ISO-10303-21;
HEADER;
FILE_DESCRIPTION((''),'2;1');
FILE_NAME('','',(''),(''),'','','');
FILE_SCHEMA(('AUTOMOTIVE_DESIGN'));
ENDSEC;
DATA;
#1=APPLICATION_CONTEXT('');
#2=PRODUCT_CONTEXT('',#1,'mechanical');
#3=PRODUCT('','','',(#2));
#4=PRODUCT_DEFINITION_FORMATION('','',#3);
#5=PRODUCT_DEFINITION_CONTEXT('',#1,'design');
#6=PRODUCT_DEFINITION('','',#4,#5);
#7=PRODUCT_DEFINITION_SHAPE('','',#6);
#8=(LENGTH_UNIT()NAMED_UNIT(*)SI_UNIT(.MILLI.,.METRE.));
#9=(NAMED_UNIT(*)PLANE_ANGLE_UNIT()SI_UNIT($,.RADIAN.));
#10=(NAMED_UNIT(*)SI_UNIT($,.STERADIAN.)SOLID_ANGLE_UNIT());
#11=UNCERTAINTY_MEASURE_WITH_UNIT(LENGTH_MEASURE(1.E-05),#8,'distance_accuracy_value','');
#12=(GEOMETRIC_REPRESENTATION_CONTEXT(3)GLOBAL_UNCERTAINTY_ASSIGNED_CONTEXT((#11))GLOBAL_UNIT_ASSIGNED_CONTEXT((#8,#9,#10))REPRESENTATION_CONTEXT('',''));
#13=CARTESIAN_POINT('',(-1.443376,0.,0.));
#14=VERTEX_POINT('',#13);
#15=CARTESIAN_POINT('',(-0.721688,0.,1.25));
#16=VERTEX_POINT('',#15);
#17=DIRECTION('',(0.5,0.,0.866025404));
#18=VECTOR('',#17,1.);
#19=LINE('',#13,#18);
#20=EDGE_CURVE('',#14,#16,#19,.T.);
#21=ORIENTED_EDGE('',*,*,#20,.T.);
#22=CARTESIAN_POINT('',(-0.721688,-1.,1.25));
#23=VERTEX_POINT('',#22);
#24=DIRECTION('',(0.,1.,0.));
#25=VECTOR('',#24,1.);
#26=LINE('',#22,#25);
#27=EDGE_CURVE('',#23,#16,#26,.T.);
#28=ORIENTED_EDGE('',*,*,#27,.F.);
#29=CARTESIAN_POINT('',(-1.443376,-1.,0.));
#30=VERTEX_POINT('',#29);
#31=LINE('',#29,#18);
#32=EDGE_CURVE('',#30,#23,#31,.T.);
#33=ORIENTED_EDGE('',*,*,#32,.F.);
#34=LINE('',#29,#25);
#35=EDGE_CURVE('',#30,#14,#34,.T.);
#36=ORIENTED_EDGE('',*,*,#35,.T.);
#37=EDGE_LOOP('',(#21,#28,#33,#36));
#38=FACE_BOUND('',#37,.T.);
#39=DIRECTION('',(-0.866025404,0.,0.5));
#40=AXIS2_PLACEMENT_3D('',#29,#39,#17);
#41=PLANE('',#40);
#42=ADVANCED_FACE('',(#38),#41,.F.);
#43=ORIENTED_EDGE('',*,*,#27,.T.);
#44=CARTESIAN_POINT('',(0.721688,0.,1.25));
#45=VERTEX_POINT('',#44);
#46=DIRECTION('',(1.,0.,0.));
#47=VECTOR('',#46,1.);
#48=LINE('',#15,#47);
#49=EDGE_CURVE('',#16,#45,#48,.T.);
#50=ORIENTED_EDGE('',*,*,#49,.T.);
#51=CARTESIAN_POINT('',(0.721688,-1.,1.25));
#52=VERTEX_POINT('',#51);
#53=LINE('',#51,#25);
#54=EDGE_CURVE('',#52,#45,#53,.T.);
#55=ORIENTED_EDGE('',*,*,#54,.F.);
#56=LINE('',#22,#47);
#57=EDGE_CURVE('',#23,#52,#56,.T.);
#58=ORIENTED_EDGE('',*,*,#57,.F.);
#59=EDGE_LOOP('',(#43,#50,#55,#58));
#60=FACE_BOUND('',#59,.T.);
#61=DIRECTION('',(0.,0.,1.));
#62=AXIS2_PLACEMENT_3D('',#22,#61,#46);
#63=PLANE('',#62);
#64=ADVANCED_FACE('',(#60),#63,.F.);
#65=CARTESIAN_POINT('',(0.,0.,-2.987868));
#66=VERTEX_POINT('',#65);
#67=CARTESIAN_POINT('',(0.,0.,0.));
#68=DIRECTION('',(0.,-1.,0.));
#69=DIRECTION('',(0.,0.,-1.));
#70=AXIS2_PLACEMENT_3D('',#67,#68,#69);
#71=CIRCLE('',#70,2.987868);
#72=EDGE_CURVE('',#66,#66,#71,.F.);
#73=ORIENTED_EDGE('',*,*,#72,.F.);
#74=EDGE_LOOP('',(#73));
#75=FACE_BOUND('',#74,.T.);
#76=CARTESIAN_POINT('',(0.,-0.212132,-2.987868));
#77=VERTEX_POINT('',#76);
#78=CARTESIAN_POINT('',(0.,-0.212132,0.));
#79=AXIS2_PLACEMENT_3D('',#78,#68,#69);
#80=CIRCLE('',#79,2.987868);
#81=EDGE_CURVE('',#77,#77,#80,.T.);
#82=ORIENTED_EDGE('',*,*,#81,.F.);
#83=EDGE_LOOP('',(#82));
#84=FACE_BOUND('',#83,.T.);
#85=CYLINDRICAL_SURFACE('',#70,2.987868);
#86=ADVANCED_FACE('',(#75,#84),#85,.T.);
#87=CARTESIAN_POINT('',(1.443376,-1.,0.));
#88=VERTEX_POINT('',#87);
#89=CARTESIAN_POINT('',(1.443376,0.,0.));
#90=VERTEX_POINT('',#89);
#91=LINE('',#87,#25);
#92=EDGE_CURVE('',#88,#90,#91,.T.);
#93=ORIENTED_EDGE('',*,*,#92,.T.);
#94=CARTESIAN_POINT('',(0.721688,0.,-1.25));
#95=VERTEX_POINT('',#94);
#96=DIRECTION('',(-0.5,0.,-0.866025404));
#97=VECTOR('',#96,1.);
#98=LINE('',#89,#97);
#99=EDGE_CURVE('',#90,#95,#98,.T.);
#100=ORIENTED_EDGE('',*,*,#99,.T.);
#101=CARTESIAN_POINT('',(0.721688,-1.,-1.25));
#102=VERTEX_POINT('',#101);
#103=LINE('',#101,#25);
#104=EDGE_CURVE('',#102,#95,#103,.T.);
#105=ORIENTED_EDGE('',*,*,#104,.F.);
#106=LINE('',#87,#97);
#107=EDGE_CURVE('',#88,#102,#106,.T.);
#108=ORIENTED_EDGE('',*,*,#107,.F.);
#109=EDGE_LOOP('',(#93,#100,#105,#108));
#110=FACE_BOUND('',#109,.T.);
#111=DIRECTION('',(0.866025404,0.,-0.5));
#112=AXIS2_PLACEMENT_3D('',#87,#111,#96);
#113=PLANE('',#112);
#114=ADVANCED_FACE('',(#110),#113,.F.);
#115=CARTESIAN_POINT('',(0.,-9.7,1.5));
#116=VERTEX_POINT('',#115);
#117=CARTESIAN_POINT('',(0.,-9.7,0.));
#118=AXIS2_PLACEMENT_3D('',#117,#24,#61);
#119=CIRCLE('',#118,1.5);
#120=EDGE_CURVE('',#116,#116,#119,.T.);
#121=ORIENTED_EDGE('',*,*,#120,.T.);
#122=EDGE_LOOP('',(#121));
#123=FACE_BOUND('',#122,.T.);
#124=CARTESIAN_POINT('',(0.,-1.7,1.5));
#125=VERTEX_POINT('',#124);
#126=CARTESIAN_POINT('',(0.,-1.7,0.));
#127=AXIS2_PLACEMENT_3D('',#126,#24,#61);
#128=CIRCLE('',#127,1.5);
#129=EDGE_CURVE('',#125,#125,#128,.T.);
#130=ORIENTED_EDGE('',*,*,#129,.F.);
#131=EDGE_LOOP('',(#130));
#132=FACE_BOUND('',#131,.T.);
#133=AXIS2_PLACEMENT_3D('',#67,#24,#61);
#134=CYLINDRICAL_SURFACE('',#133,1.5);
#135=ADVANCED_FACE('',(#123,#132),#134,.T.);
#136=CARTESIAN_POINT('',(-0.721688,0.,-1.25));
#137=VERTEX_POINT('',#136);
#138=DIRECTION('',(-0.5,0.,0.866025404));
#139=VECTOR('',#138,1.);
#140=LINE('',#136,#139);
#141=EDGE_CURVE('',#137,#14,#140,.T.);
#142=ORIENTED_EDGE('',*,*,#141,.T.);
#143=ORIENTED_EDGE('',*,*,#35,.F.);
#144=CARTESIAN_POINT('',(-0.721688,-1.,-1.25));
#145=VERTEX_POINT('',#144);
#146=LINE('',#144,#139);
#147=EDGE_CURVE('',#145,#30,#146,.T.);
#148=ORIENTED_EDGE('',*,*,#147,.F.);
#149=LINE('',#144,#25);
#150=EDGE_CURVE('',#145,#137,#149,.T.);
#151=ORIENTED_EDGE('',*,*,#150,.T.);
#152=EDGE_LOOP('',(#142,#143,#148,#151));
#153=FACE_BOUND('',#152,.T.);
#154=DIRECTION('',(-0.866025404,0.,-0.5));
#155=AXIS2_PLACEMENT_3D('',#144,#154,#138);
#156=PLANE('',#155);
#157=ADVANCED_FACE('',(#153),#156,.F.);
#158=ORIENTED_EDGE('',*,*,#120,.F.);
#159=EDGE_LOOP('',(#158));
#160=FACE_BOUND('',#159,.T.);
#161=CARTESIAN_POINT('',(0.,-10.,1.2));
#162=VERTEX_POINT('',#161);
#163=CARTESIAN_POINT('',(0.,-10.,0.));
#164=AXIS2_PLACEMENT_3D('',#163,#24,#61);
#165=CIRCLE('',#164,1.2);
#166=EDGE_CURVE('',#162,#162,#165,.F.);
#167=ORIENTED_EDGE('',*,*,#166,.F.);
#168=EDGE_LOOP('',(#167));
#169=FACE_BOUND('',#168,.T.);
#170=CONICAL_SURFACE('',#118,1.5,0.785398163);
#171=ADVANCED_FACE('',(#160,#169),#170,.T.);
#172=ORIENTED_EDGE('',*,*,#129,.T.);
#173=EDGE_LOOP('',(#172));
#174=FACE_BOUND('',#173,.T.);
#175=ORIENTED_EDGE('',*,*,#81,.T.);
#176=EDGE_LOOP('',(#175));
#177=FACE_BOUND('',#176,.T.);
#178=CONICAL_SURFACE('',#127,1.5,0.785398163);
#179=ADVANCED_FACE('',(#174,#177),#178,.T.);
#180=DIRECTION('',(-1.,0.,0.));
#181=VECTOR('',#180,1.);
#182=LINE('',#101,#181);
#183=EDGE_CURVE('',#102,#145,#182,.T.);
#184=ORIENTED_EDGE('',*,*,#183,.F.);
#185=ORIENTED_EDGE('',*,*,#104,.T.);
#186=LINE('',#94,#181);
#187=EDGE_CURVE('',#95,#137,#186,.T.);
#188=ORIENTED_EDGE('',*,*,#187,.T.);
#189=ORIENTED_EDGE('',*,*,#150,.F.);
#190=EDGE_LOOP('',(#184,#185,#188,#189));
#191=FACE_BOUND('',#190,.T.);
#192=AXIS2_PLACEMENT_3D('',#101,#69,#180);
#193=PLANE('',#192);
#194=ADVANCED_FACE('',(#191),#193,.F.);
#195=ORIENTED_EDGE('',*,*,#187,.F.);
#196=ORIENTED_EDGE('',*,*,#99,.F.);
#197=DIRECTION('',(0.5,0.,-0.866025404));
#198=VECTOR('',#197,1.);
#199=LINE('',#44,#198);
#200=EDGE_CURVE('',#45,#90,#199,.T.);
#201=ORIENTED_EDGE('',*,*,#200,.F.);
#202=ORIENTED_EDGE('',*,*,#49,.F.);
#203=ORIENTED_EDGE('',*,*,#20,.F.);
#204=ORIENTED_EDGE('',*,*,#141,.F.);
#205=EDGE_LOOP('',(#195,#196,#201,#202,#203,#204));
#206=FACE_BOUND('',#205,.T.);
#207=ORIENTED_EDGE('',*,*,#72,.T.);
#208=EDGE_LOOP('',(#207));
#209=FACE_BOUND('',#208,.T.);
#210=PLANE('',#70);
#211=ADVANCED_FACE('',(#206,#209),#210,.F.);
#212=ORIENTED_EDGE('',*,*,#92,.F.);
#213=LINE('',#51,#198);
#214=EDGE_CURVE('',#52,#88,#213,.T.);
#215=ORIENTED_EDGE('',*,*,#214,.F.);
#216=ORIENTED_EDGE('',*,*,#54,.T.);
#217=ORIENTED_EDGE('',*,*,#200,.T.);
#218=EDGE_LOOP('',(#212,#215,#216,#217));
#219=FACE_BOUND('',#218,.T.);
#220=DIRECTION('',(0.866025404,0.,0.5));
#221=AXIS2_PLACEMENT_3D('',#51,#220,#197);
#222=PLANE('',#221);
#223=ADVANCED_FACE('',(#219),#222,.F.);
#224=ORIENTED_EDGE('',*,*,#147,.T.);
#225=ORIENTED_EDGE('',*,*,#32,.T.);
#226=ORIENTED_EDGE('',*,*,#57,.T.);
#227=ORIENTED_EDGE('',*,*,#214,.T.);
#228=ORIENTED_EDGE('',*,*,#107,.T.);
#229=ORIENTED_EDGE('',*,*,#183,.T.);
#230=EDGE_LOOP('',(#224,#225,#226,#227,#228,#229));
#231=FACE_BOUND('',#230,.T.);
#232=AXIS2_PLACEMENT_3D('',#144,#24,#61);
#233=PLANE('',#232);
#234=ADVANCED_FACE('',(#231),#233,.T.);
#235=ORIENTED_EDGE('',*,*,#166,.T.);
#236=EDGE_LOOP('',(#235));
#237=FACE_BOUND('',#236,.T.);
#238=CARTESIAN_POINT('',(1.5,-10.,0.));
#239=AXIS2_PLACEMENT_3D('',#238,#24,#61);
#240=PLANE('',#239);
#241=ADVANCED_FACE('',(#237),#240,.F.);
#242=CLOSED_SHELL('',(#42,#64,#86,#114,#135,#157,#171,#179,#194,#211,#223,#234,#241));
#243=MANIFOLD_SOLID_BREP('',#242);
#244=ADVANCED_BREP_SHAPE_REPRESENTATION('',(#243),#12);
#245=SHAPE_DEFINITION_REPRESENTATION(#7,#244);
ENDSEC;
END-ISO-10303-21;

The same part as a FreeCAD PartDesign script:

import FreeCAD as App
import Part
import Sketcher

V = App.Vector
Q = App.Units.Quantity


def edges_at(feature, points):
    """Names of the edges that pass closest to the given points."""
    edges = feature.Shape.Edges
    near = lambda p: min(range(len(edges)), key=lambda i: edges[i].distToShape(Part.Vertex(*p))[0])
    return sorted({f"Edge{near(p) + 1}" for p in points})


def add_polygon(sketch, points):
    """Adds a closed chain of lines whose ends are joined by coincident constraints."""
    first, n = sketch.GeometryCount, len(points)
    for a, b in zip(points, points[1:] + points[:1]):
        sketch.addGeometry(Part.LineSegment(App.Vector(*a, 0), App.Vector(*b, 0)), False)
    for i in range(n):
        sketch.addConstraint(Sketcher.Constraint("Coincident", first + i, 2, first + (i + 1) % n, 1))

doc = App.newDocument("Part")
body = doc.addObject("PartDesign::Body", "Body")

# Sketch on XY plane
sketch1 = body.newObject("Sketcher::SketchObject", "Sketch")
sketch1.AttachmentSupport = (doc.getObject("XY_Plane"), [""])
sketch1.MapMode = "FlatFace"
add_polygon(sketch1, [(3.2, 0), (0, 0), (0, -10), (1.5, -10), (1.5, -1.7)])  # lines 0-4
sketch1.addConstraint([
    Sketcher.Constraint("Horizontal", 0),
    Sketcher.Constraint("Vertical", 1),
    Sketcher.Constraint("Horizontal", 2),
    Sketcher.Constraint("Vertical", 3),
    Sketcher.Constraint("Coincident", 0, 2, -1, 1),
    Sketcher.Constraint("DistanceY", 1, 2, 1, 1, 10.0),
    Sketcher.Constraint("Angle", 4, Q("45 deg")),
    Sketcher.Constraint("DistanceX", 0, 2, 0, 1, 3.2),
    Sketcher.Constraint("DistanceX", 2, 1, 2, 2, 1.5),
])
revolution = body.newObject("PartDesign::Revolution", "Revolution")
revolution.Profile = sketch1
revolution.ReferenceAxis = (sketch1, ["V_Axis"])
revolution.Angle = 360
doc.recompute()

chamfer = body.newObject("PartDesign::Chamfer", "Chamfer")
chamfer.Base = (revolution, edges_at(revolution, [(0, 0, -3.2)]))
chamfer.ChamferType = "Two distances"
chamfer.Size = 0.3
chamfer.Size2 = 0.212132
chamfer.FlipDirection = True
doc.recompute()

chamfer2 = body.newObject("PartDesign::Chamfer", "Chamfer001")
chamfer2.Base = (chamfer, edges_at(chamfer, [(0, -10, -1.5)]))
chamfer2.Size = 0.3

# Sketch on XZ plane
sketch2 = body.newObject("Sketcher::SketchObject", "Sketch001")
sketch2.AttachmentSupport = (doc.getObject("XZ_Plane"), [""])
sketch2.MapMode = "FlatFace"
add_polygon(sketch2, [(-0.7, -1.2), (-1.4, 0), (-0.7, 1.2), (0.7, 1.2), (1.4, 0), (0.7, -1.2)])  # lines 0-5
sketch2.addConstraint([
    Sketcher.Constraint("Horizontal", 2),
    Sketcher.Constraint("Horizontal", 5),
    Sketcher.Constraint("Symmetric", 0, 2, 3, 2, -1, 1),
    Sketcher.Constraint("Symmetric", 1, 2, 4, 2, -1, 1),
    Sketcher.Constraint("PointOnObject", 0, 2, -1),
    Sketcher.Constraint("Parallel", 0, 3),
    Sketcher.Constraint("Vertical", 2, 2, 4, 2),
    Sketcher.Constraint("Angle", 0, Q("120 deg")),
    Sketcher.Constraint("DistanceY", 4, 2, 2, 2, 2.5),
    Sketcher.Constraint("DistanceX", 2, 1, 2, 2, 1.443376),
])
pocket1 = body.newObject("PartDesign::Pocket", "Pocket")
pocket1.Profile = sketch2
pocket1.Length = 1
pocket1.Reversed = True

doc.recompute()
